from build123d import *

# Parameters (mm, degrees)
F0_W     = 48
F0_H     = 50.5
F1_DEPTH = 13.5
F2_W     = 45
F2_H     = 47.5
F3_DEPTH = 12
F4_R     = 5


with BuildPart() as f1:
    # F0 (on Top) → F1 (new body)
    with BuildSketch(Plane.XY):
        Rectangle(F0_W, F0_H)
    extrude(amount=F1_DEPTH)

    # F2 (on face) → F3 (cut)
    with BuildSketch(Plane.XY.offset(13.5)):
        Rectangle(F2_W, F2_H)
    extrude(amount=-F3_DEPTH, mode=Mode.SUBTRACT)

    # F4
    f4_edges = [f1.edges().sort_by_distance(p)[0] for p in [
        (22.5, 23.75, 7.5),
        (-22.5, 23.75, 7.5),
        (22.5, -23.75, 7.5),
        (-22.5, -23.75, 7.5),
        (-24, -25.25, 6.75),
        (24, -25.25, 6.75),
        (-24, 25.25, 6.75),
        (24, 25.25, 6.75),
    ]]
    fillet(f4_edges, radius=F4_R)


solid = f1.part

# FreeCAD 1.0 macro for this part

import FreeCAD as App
import Part
import Sketcher
from FreeCAD import Vector


def edges_at(feature, points):
    """Names of the edges that pass closest to the given points."""
    edges = feature.Shape.Edges
    near = lambda p: min(range(len(edges)), key=lambda i: edges[i].distToShape(Part.Vertex(*p))[0])
    return sorted({f"Edge{near(p) + 1}" for p in points})


def add_polygon(sketch, points):
    """Adds a closed chain of lines whose ends are joined by coincident constraints."""
    first, n = sketch.GeometryCount, len(points)
    for a, b in zip(points, points[1:] + points[:1]):
        sketch.addGeometry(Part.LineSegment(App.Vector(*a, 0), App.Vector(*b, 0)), False)
    for i in range(n):
        sketch.addConstraint(Sketcher.Constraint("Coincident", first + i, 2, first + (i + 1) % n, 1))

doc = App.newDocument("Part")
body = doc.addObject("PartDesign::Body", "Body")

sketch1 = doc.addObject("Sketcher::SketchObject", "Sketch")
body.addObject(sketch1)
sketch1.AttachmentSupport = (doc.XY_Plane, [""])
sketch1.MapMode = "FlatFace"
add_polygon(sketch1, [(-24, 25.25), (-24, -25.25), (24, -25.25), (24, 25.25)])
sketch1.addConstraint([
    Sketcher.Constraint("Vertical", 0),
    Sketcher.Constraint("Horizontal", 1),
    Sketcher.Constraint("Vertical", 2),
    Sketcher.Constraint("Horizontal", 3),
    Sketcher.Constraint("Symmetric", 0, 2, 2, 2, -1, 1),
    Sketcher.Constraint("DistanceX", 1, 1, 1, 2, 48.0),
    Sketcher.Constraint("DistanceY", 0, 2, 0, 1, 50.5),
])
pad1 = doc.addObject("PartDesign::Pad", "Pad")
body.addObject(pad1)
pad1.Profile = sketch1
pad1.Length = 13.5

sketch2 = doc.addObject("Sketcher::SketchObject", "Sketch001")
body.addObject(sketch2)
sketch2.AttachmentSupport = (doc.XY_Plane, [""])
sketch2.MapMode = "FlatFace"
sketch2.AttachmentOffset = App.Placement(Vector(0, 0, 13.5), App.Rotation())
add_polygon(sketch2, [(-22.5, 23.75), (-22.5, -23.75), (22.5, -23.75), (22.5, 23.75)])
sketch2.addConstraint([
    Sketcher.Constraint("Vertical", 0),
    Sketcher.Constraint("Horizontal", 1),
    Sketcher.Constraint("Vertical", 2),
    Sketcher.Constraint("Horizontal", 3),
    Sketcher.Constraint("Symmetric", 0, 2, 2, 2, -1, 1),
    Sketcher.Constraint("DistanceX", 1, 1, 1, 2, 45.0),
    Sketcher.Constraint("DistanceY", 0, 2, 0, 1, 47.5),
])
pocket1 = doc.addObject("PartDesign::Pocket", "Pocket")
body.addObject(pocket1)
pocket1.Profile = sketch2
pocket1.Length = 12
doc.recompute()

fillet = doc.addObject("PartDesign::Fillet", "Fillet")
body.addObject(fillet)
fillet.Base = (pocket1, edges_at(pocket1, [
    (22.5, 23.75, 7.5),
    (-22.5, 23.75, 7.5),
    (22.5, -23.75, 7.5),
    (-22.5, -23.75, 7.5),
    (-24, -25.25, 6.75),
    (24, -25.25, 6.75),
    (-24, 25.25, 6.75),
    (24, 25.25, 6.75),
]))
fillet.Radius = 5

doc.recompute()
